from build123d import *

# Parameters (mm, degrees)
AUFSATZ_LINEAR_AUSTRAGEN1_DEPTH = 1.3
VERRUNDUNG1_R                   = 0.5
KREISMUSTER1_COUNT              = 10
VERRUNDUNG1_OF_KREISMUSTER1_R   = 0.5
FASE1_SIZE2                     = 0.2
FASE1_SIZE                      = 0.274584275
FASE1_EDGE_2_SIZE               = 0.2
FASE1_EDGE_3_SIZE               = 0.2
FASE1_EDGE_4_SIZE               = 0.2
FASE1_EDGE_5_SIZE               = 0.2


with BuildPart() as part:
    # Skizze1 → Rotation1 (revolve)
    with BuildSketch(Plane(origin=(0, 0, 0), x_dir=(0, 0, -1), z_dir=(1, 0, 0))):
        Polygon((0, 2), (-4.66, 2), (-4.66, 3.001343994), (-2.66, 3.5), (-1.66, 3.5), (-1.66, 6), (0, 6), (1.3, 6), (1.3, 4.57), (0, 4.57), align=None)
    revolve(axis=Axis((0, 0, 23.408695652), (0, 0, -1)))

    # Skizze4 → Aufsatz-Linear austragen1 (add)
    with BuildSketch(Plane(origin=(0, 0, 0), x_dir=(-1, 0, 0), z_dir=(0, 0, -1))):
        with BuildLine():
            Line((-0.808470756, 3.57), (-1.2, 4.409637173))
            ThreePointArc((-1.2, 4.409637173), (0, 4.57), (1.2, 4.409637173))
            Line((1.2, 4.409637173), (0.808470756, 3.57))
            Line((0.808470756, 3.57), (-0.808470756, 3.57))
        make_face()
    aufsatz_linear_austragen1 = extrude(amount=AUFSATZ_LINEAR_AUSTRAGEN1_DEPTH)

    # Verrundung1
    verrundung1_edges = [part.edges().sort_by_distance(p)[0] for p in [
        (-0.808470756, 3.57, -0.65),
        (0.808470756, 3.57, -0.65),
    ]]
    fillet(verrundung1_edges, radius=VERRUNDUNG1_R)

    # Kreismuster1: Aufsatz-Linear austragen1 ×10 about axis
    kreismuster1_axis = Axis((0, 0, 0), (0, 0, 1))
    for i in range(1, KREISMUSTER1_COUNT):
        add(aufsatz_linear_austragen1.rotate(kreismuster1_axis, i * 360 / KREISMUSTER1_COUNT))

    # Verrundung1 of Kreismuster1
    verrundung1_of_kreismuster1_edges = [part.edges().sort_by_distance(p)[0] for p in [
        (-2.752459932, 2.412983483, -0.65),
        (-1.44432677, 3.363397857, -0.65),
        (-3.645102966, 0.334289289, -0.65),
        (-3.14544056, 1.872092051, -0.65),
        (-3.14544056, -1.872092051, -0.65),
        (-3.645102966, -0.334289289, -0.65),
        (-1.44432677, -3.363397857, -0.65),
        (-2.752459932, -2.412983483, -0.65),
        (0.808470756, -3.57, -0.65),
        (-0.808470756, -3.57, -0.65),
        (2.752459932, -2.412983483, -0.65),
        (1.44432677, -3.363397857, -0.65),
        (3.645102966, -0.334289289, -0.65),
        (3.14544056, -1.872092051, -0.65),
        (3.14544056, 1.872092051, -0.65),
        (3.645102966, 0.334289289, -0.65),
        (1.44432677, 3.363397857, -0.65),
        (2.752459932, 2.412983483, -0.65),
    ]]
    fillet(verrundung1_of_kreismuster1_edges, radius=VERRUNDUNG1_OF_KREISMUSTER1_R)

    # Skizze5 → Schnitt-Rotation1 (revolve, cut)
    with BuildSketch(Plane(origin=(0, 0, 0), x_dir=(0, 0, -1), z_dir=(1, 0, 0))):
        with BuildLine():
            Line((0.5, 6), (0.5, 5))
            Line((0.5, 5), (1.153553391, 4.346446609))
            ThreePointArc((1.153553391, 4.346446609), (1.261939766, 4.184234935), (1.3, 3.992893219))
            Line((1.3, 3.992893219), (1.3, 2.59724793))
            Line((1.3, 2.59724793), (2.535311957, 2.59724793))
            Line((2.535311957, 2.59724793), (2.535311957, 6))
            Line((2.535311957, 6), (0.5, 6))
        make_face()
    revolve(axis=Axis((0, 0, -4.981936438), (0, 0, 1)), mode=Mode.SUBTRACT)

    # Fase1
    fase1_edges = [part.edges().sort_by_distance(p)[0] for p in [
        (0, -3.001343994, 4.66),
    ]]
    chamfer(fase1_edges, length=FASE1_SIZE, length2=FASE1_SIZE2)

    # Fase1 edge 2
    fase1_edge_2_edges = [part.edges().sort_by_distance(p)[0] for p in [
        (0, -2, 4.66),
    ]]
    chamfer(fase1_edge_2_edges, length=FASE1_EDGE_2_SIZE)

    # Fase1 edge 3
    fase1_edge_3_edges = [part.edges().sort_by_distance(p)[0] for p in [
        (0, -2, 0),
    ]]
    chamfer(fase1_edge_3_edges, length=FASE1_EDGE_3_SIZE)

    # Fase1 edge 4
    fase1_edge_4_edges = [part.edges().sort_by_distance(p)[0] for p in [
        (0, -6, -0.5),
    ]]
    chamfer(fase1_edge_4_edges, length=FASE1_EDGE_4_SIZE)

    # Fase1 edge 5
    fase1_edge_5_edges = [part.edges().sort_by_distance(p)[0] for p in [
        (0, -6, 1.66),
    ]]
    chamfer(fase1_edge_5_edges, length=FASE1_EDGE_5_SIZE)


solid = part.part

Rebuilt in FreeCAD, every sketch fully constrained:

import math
import FreeCAD as App
import Part
import Sketcher
from FreeCAD import Vector
Q = App.Units.Quantity


def edges_at(feature, points):
    """Names of the edges that pass closest to the given points."""
    edges = feature.Shape.Edges
    near = lambda p: min(range(len(edges)), key=lambda i: edges[i].distToShape(Part.Vertex(*p))[0])
    return sorted({f"Edge{near(p) + 1}" for p in points})


def add_polygon(sketch, points):
    """Adds a closed chain of lines whose ends are joined by coincident constraints."""
    first, n = sketch.GeometryCount, len(points)
    for a, b in zip(points, points[1:] + points[:1]):
        sketch.addGeometry(Part.LineSegment(App.Vector(*a, 0), App.Vector(*b, 0)), False)
    for i in range(n):
        sketch.addConstraint(Sketcher.Constraint("Coincident", first + i, 2, first + (i + 1) % n, 1))

doc = App.newDocument("Part")
body = doc.addObject("PartDesign::Body", "Body")

# Sketch on YZ plane
sketch1 = doc.addObject("Sketcher::SketchObject", "Sketch")
body.addObject(sketch1)
sketch1.AttachmentSupport = (doc.YZ_Plane, [""])
sketch1.MapMode = "FlatFace"
add_polygon(sketch1, [(2, 4.7), (2, 0), (4.6, 0), (4.6, -1.3), (6, -1.3), (6, 1.7), (3.5, 1.7), (3.5, 2.7), (3, 4.7)])  # lines 0-8
sketch1.addConstraint([
    Sketcher.Constraint("Vertical", 0),
    Sketcher.Constraint("Horizontal", 1),
    Sketcher.Constraint("Vertical", 2),
    Sketcher.Constraint("Horizontal", 3),
    Sketcher.Constraint("Vertical", 4),
    Sketcher.Constraint("Horizontal", 5),
    Sketcher.Constraint("Vertical", 6),
    Sketcher.Constraint("Horizontal", 8),
    Sketcher.Constraint("PointOnObject", 0, 2, -1),
    Sketcher.Constraint("DistanceY", 6, 1, 6, 2, Q("1 mm")),
    Sketcher.Constraint("Angle", 7, Q("104 deg")),
    Sketcher.Constraint("DistanceX", 5, 2, 5, 1, Q("2.5 mm")),
    Sketcher.Constraint("DistanceY", 2, 2, 2, 1, Q("1.3 mm")),
    Sketcher.Constraint("DistanceX", -1, 1, 0, 2, Q("2 mm")),
    Sketcher.Constraint("DistanceX", -1, 1, 3, 2, Q("6 mm")),
    Sketcher.Constraint("DistanceY", 6, 2, 7, 2, Q("2 mm")),
    Sketcher.Constraint("DistanceX", 1, 1, 1, 2, Q("2.57 mm")),
    Sketcher.Constraint("DistanceY", 0, 2, 0, 1, Q("4.66 mm")),
])
revolution = doc.addObject("PartDesign::Revolution", "Revolution")
body.addObject(revolution)
revolution.Profile = sketch1
revolution.ReferenceAxis = (sketch1, ["V_Axis"])
revolution.Angle = 360

# Sketch on XY plane
sketch2 = doc.addObject("Sketcher::SketchObject", "Sketch001")
body.addObject(sketch2)
sketch2.AttachmentSupport = (doc.XY_Plane, [""])
sketch2.MapMode = "FlatFace"
sketch2.addGeometry([
    Part.LineSegment(Vector(1.2, 4.4, 0), Vector(0.8, 3.6, 0)),
    Part.LineSegment(Vector(0.8, 3.6, 0), Vector(-0.8, 3.6, 0)),
    Part.LineSegment(Vector(-0.8, 3.6, 0), Vector(-1.2, 4.4, 0)),
    Part.ArcOfCircle(Part.Circle(Vector(0, 0, 0), Vector(0, 0, 1), 4.6), math.radians(75), math.radians(105)),
], False)
sketch2.addConstraint([
    Sketcher.Constraint("Coincident", 0, 2, 1, 1),
    Sketcher.Constraint("Coincident", 1, 2, 2, 1),
    Sketcher.Constraint("Coincident", 2, 2, 3, 2),
    Sketcher.Constraint("Coincident", 3, 1, 0, 1),
    Sketcher.Constraint("Horizontal", 1),
    Sketcher.Constraint("Coincident", 3, 3, -1, 1),
    Sketcher.Constraint("Horizontal", 2, 2, 3, 1),
    Sketcher.Constraint("Equal", 0, 2),
    Sketcher.Constraint("Angle", 0, Q("-115 deg")),
    Sketcher.Constraint("Radius", 3, Q("4.57 mm")),
    Sketcher.Constraint("DistanceX", 2, 2, -1, 1, Q("1.2 mm")),
    Sketcher.Constraint("DistanceY", -1, 1, 0, 2, Q("3.57 mm")),
])
pad1 = doc.addObject("PartDesign::Pad", "Pad")
body.addObject(pad1)
pad1.Profile = sketch2
pad1.Length = 1.3
pad1.Reversed = True
doc.recompute()

fillet = doc.addObject("PartDesign::Fillet", "Fillet")
body.addObject(fillet)
fillet.Base = (pad1, edges_at(pad1, [(-0.808, 3.57, -0.65), (0.808, 3.57, -0.65)]))
fillet.Radius = 0.5
doc.recompute()

polarpattern = doc.addObject("PartDesign::PolarPattern", "PolarPattern")
body.addObject(polarpattern)
polarpattern.Originals = [pad1]
polarpattern.Axis = (doc.Z_Axis, [""])
polarpattern.Angle = 360
polarpattern.Occurrences = 10
body.Tip = polarpattern
doc.recompute()

fillet2 = doc.addObject("PartDesign::Fillet", "Fillet001")
body.addObject(fillet2)
fillet2.Base = (polarpattern, edges_at(polarpattern, [
    (-2.752, 2.413, -0.65),
    (-1.444, 3.363, -0.65),
    (-3.645, 0.334, -0.65),
    (-3.145, 1.872, -0.65),
    (-3.145, -1.872, -0.65),
    (-3.645, -0.334, -0.65),
    (-1.444, -3.363, -0.65),
    (-2.752, -2.413, -0.65),
    (0.808, -3.57, -0.65),
    (-0.808, -3.57, -0.65),
    (2.752, -2.413, -0.65),
    (1.444, -3.363, -0.65),
    (3.645, -0.334, -0.65),
    (3.145, -1.872, -0.65),
    (3.145, 1.872, -0.65),
    (3.645, 0.334, -0.65),
    (1.444, 3.363, -0.65),
    (2.752, 2.413, -0.65),
]))
fillet2.Radius = 0.5

# Sketch on YZ plane
sketch3 = doc.addObject("Sketcher::SketchObject", "Sketch002")
body.addObject(sketch3)
sketch3.AttachmentSupport = (doc.YZ_Plane, [""])
sketch3.MapMode = "FlatFace"
sketch3.addGeometry([
    Part.LineSegment(Vector(6, -0.5, 0), Vector(5, -0.5, 0)),  # 0
    Part.LineSegment(Vector(5, -0.5, 0), Vector(4.35, -1.15, 0)),  # 1
    Part.ArcOfCircle(Part.Circle(Vector(3.99, -0.8, 0), Vector(0, 0, 1), 0.5), math.radians(-90), math.radians(-45)),  # 2
    Part.LineSegment(Vector(3.99, -1.3, 0), Vector(2.6, -1.3, 0)),  # 3
    Part.LineSegment(Vector(2.6, -1.3, 0), Vector(2.6, -2.54, 0)),  # 4
    Part.LineSegment(Vector(2.6, -2.54, 0), Vector(6, -2.54, 0)),  # 5
    Part.LineSegment(Vector(6, -2.54, 0), Vector(6, -0.5, 0)),  # 6
], False)
sketch3.addConstraint([
    Sketcher.Constraint("Coincident", 0, 2, 1, 1),
    Sketcher.Constraint("Tangent", 1, 2, 2, 2),
    Sketcher.Constraint("Tangent", 2, 1, 3, 1),
    Sketcher.Constraint("Coincident", 3, 2, 4, 1),
    Sketcher.Constraint("Coincident", 4, 2, 5, 1),
    Sketcher.Constraint("Coincident", 5, 2, 6, 1),
    Sketcher.Constraint("Coincident", 6, 2, 0, 1),
    Sketcher.Constraint("Horizontal", 0),
    Sketcher.Constraint("Horizontal", 3),
    Sketcher.Constraint("Vertical", 4),
    Sketcher.Constraint("Horizontal", 5),
    Sketcher.Constraint("Vertical", 6),
    Sketcher.Constraint("Radius", 2, Q("0.5 mm")),
    Sketcher.Constraint("DistanceX", 0, 2, 0, 1, Q("1 mm")),
    Sketcher.Constraint("Angle", 1, Q("-135 deg")),
    Sketcher.Constraint("DistanceX", -1, 1, 0, 2, Q("5 mm")),
    Sketcher.Constraint("DistanceY", 2, 3, -1, 1, Q("0.8 mm")),
    Sketcher.Constraint("DistanceY", 0, 2, -1, 1, Q("0.5 mm")),
    Sketcher.Constraint("DistanceY", 4, 2, 4, 1, Q("1.235312 mm")),
    Sketcher.Constraint("DistanceX", 3, 2, 1, 2, Q("1.749199 mm")),
])
groove = doc.addObject("PartDesign::Groove", "Groove")
body.addObject(groove)
groove.Profile = sketch3
groove.ReferenceAxis = (sketch3, ["V_Axis"])
groove.Angle = 360
doc.recompute()

chamfer = doc.addObject("PartDesign::Chamfer", "Chamfer")
body.addObject(chamfer)
chamfer.Base = (groove, edges_at(groove, [(0, -3.001, 4.66)]))
chamfer.ChamferType = "Two distances"
chamfer.Size = 0.274584
chamfer.Size2 = 0.2
doc.recompute()

chamfer2 = doc.addObject("PartDesign::Chamfer", "Chamfer001")
body.addObject(chamfer2)
chamfer2.Base = (chamfer, edges_at(chamfer, [(0, -2, 4.66)]))
chamfer2.Size = 0.2
doc.recompute()

chamfer3 = doc.addObject("PartDesign::Chamfer", "Chamfer002")
body.addObject(chamfer3)
chamfer3.Base = (chamfer2, edges_at(chamfer2, [(0, -2, 0)]))
chamfer3.Size = 0.2
doc.recompute()

chamfer4 = doc.addObject("PartDesign::Chamfer", "Chamfer003")
body.addObject(chamfer4)
chamfer4.Base = (chamfer3, edges_at(chamfer3, [(0, -6, -0.5)]))
chamfer4.Size = 0.2
doc.recompute()

chamfer5 = doc.addObject("PartDesign::Chamfer", "Chamfer004")
body.addObject(chamfer5)
chamfer5.Base = (chamfer4, edges_at(chamfer4, [(0, -6, 1.66)]))
chamfer5.Size = 0.2

doc.recompute()
